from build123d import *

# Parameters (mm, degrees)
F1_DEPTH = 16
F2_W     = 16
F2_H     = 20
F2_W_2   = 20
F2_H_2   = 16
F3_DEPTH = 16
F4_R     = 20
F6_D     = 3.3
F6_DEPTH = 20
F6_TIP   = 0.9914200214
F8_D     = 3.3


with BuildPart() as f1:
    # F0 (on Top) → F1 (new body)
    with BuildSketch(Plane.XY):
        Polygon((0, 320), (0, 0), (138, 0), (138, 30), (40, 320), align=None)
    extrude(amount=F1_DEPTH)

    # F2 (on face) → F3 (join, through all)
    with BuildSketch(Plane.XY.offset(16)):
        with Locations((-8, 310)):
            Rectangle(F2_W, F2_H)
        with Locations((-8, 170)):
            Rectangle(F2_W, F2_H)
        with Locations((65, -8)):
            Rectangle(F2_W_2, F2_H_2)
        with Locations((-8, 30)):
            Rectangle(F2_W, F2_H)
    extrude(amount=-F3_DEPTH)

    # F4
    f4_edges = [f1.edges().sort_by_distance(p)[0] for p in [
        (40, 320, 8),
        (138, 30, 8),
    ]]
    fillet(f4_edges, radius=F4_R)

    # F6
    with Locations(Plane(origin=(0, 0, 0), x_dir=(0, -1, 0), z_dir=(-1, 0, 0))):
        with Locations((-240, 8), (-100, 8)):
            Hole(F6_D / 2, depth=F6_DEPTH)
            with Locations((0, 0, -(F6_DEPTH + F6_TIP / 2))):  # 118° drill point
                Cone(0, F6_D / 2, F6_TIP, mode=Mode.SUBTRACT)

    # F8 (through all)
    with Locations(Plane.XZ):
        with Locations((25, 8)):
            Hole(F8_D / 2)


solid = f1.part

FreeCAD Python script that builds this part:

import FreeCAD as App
import Part
import Sketcher

V = App.Vector
Q = App.Units.Quantity


def edges_at(feature, points):
    """Names of the edges that pass closest to the given points."""
    edges = feature.Shape.Edges
    near = lambda p: min(range(len(edges)), key=lambda i: edges[i].distToShape(Part.Vertex(*p))[0])
    return sorted({f"Edge{near(p) + 1}" for p in points})


def add_polygon(sketch, points):
    """Adds a closed chain of lines whose ends are joined by coincident constraints."""
    first, n = sketch.GeometryCount, len(points)
    for a, b in zip(points, points[1:] + points[:1]):
        sketch.addGeometry(Part.LineSegment(App.Vector(*a, 0), App.Vector(*b, 0)), False)
    for i in range(n):
        sketch.addConstraint(Sketcher.Constraint("Coincident", first + i, 2, first + (i + 1) % n, 1))

doc = App.newDocument("Part")
body = doc.addObject("PartDesign::Body", "Body")

# Sketch on XY plane
sketch1 = doc.addObject("Sketcher::SketchObject", "Sketch")
body.addObject(sketch1)
sketch1.AttachmentSupport = (doc.XY_Plane, [""])
sketch1.MapMode = "FlatFace"
add_polygon(sketch1, [(0, 320), (0, 0), (138, 0), (138, 30), (40, 320)])  # lines 0-4
sketch1.addConstraint(Sketcher.Constraint("Vertical", 0))
sketch1.addConstraint(Sketcher.Constraint("Horizontal", 1))
sketch1.addConstraint(Sketcher.Constraint("Vertical", 2))
sketch1.addConstraint(Sketcher.Constraint("Horizontal", 4))
sketch1.addConstraint(Sketcher.Constraint("Coincident", 0, 2, -1, 1))
sketch1.addConstraint(Sketcher.Constraint("DistanceX", 1, 1, 1, 2, Q("138 mm")))
sketch1.addConstraint(Sketcher.Constraint("DistanceX", 4, 2, 4, 1, Q("40 mm")))
sketch1.addConstraint(Sketcher.Constraint("DistanceY", 0, 2, 0, 1, Q("320 mm")))
sketch1.addConstraint(Sketcher.Constraint("DistanceY", 2, 1, 2, 2, Q("30 mm")))
pad1 = doc.addObject("PartDesign::Pad", "Pad")
body.addObject(pad1)
pad1.Profile = sketch1
pad1.Length = 16

# Sketch on XY plane
sketch2 = doc.addObject("Sketcher::SketchObject", "Sketch001")
body.addObject(sketch2)
sketch2.AttachmentSupport = (doc.XY_Plane, [""])
sketch2.MapMode = "FlatFace"
sketch2.AttachmentOffset = App.Placement(V(0, 0, 16), App.Rotation())
add_polygon(sketch2, [(-16, 320), (-16, 300), (0, 300), (0, 320)])  # lines 0-3
add_polygon(sketch2, [(-16, 180), (-16, 160), (0, 160), (0, 180)])  # lines 4-7
add_polygon(sketch2, [(55, 0), (55, -16), (75, -16), (75, 0)])  # lines 8-11
add_polygon(sketch2, [(-16, 40), (-16, 20), (0, 20), (0, 40)])  # lines 12-15
sketch2.addConstraint(Sketcher.Constraint("Vertical", 0))
sketch2.addConstraint(Sketcher.Constraint("Horizontal", 1))
sketch2.addConstraint(Sketcher.Constraint("Vertical", 2))
sketch2.addConstraint(Sketcher.Constraint("Horizontal", 3))
sketch2.addConstraint(Sketcher.Constraint("Vertical", 4))
sketch2.addConstraint(Sketcher.Constraint("Horizontal", 5))
sketch2.addConstraint(Sketcher.Constraint("Vertical", 6))
sketch2.addConstraint(Sketcher.Constraint("Horizontal", 7))
sketch2.addConstraint(Sketcher.Constraint("Vertical", 8))
sketch2.addConstraint(Sketcher.Constraint("Horizontal", 9))
sketch2.addConstraint(Sketcher.Constraint("Vertical", 10))
sketch2.addConstraint(Sketcher.Constraint("Horizontal", 11))
sketch2.addConstraint(Sketcher.Constraint("Vertical", 12))
sketch2.addConstraint(Sketcher.Constraint("Horizontal", 13))
sketch2.addConstraint(Sketcher.Constraint("Vertical", 14))
sketch2.addConstraint(Sketcher.Constraint("Horizontal", 15))
sketch2.addConstraint(Sketcher.Constraint("PointOnObject", 1, 2, -2))
sketch2.addConstraint(Sketcher.Constraint("PointOnObject", 5, 2, -2))
sketch2.addConstraint(Sketcher.Constraint("PointOnObject", 10, 2, -1))
sketch2.addConstraint(Sketcher.Constraint("PointOnObject", 13, 2, -2))
sketch2.addConstraint(Sketcher.Constraint("Vertical", 3, 2, 4, 2))
sketch2.addConstraint(Sketcher.Constraint("Vertical", 7, 2, 12, 2))
sketch2.addConstraint(Sketcher.Constraint("Equal", 11, 0))
sketch2.addConstraint(Sketcher.Constraint("Equal", 2, 4))
sketch2.addConstraint(Sketcher.Constraint("Equal", 15, 8))
sketch2.addConstraint(Sketcher.Constraint("Equal", 6, 12))
sketch2.addConstraint(Sketcher.Constraint("DistanceX", 1, 1, 1, 2, Q("16 mm")))
sketch2.addConstraint(Sketcher.Constraint("DistanceX", 9, 1, 9, 2, Q("20 mm")))
sketch2.addConstraint(Sketcher.Constraint("DistanceY", -1, 1, 0, 2, Q("300 mm")))
sketch2.addConstraint(Sketcher.Constraint("DistanceY", -1, 1, 4, 2, Q("160 mm")))
sketch2.addConstraint(Sketcher.Constraint("DistanceX", -1, 1, 8, 2, Q("55 mm")))
sketch2.addConstraint(Sketcher.Constraint("DistanceY", -1, 1, 12, 2, Q("20 mm")))
pad2 = doc.addObject("PartDesign::Pad", "Pad001")
body.addObject(pad2)
pad2.Profile = sketch2
pad2.Type = "UpToLast"
pad2.Reversed = True
doc.recompute()

fillet = doc.addObject("PartDesign::Fillet", "Fillet")
body.addObject(fillet)
fillet.Base = (pad2, edges_at(pad2, [(40, 320, 8), (138, 30, 8)]))
fillet.Radius = 20

# Sketch on YZ plane
sketch3 = doc.addObject("Sketcher::SketchObject", "Sketch002")
body.addObject(sketch3)
sketch3.AttachmentSupport = (doc.YZ_Plane, [""])
sketch3.MapMode = "FlatFace"
sketch3.addGeometry(Part.Circle(V(240, 8, 0), V(0, 0, 1), 1.65), False)
sketch3.addGeometry(Part.Circle(V(100, 8, 0), V(0, 0, 1), 1.65), False)
sketch3.addConstraint(Sketcher.Constraint("Equal", 0, 1))
sketch3.addConstraint(Sketcher.Constraint("Horizontal", 0, 3, 1, 3))
sketch3.addConstraint(Sketcher.Constraint("Diameter", 0, Q("3.3 mm")))
sketch3.addConstraint(Sketcher.Constraint("DistanceX", -1, 1, 0, 3, Q("240 mm")))
sketch3.addConstraint(Sketcher.Constraint("DistanceY", -1, 1, 0, 3, Q("8 mm")))
sketch3.addConstraint(Sketcher.Constraint("DistanceX", -1, 1, 1, 3, Q("100 mm")))
doc.recompute()
hole = doc.addObject("PartDesign::Hole", "Hole")
body.addObject(hole)
hole.Profile = sketch3
hole.ThreadType = "None"
hole.Diameter = 3.3
hole.DepthType = "Dimension"
hole.Depth = 20
hole.DrillPoint = "Angled"
hole.DrillPointAngle = 118
hole.Reversed = True

# Sketch on XZ plane
sketch4 = doc.addObject("Sketcher::SketchObject", "Sketch003")
body.addObject(sketch4)
sketch4.AttachmentSupport = (doc.XZ_Plane, [""])
sketch4.MapMode = "FlatFace"
sketch4.addGeometry(Part.Circle(V(25, 8, 0), V(0, 0, 1), 1.65), False)
sketch4.addConstraint(Sketcher.Constraint("Diameter", 0, Q("3.3 mm")))
sketch4.addConstraint(Sketcher.Constraint("DistanceX", -1, 1, 0, 3, Q("25 mm")))
sketch4.addConstraint(Sketcher.Constraint("DistanceY", -1, 1, 0, 3, Q("8 mm")))
doc.recompute()
hole2 = doc.addObject("PartDesign::Hole", "Hole001")
body.addObject(hole2)
hole2.Profile = sketch4
hole2.ThreadType = "None"
hole2.Diameter = 3.3
hole2.DepthType = "ThroughAll"

doc.recompute()
